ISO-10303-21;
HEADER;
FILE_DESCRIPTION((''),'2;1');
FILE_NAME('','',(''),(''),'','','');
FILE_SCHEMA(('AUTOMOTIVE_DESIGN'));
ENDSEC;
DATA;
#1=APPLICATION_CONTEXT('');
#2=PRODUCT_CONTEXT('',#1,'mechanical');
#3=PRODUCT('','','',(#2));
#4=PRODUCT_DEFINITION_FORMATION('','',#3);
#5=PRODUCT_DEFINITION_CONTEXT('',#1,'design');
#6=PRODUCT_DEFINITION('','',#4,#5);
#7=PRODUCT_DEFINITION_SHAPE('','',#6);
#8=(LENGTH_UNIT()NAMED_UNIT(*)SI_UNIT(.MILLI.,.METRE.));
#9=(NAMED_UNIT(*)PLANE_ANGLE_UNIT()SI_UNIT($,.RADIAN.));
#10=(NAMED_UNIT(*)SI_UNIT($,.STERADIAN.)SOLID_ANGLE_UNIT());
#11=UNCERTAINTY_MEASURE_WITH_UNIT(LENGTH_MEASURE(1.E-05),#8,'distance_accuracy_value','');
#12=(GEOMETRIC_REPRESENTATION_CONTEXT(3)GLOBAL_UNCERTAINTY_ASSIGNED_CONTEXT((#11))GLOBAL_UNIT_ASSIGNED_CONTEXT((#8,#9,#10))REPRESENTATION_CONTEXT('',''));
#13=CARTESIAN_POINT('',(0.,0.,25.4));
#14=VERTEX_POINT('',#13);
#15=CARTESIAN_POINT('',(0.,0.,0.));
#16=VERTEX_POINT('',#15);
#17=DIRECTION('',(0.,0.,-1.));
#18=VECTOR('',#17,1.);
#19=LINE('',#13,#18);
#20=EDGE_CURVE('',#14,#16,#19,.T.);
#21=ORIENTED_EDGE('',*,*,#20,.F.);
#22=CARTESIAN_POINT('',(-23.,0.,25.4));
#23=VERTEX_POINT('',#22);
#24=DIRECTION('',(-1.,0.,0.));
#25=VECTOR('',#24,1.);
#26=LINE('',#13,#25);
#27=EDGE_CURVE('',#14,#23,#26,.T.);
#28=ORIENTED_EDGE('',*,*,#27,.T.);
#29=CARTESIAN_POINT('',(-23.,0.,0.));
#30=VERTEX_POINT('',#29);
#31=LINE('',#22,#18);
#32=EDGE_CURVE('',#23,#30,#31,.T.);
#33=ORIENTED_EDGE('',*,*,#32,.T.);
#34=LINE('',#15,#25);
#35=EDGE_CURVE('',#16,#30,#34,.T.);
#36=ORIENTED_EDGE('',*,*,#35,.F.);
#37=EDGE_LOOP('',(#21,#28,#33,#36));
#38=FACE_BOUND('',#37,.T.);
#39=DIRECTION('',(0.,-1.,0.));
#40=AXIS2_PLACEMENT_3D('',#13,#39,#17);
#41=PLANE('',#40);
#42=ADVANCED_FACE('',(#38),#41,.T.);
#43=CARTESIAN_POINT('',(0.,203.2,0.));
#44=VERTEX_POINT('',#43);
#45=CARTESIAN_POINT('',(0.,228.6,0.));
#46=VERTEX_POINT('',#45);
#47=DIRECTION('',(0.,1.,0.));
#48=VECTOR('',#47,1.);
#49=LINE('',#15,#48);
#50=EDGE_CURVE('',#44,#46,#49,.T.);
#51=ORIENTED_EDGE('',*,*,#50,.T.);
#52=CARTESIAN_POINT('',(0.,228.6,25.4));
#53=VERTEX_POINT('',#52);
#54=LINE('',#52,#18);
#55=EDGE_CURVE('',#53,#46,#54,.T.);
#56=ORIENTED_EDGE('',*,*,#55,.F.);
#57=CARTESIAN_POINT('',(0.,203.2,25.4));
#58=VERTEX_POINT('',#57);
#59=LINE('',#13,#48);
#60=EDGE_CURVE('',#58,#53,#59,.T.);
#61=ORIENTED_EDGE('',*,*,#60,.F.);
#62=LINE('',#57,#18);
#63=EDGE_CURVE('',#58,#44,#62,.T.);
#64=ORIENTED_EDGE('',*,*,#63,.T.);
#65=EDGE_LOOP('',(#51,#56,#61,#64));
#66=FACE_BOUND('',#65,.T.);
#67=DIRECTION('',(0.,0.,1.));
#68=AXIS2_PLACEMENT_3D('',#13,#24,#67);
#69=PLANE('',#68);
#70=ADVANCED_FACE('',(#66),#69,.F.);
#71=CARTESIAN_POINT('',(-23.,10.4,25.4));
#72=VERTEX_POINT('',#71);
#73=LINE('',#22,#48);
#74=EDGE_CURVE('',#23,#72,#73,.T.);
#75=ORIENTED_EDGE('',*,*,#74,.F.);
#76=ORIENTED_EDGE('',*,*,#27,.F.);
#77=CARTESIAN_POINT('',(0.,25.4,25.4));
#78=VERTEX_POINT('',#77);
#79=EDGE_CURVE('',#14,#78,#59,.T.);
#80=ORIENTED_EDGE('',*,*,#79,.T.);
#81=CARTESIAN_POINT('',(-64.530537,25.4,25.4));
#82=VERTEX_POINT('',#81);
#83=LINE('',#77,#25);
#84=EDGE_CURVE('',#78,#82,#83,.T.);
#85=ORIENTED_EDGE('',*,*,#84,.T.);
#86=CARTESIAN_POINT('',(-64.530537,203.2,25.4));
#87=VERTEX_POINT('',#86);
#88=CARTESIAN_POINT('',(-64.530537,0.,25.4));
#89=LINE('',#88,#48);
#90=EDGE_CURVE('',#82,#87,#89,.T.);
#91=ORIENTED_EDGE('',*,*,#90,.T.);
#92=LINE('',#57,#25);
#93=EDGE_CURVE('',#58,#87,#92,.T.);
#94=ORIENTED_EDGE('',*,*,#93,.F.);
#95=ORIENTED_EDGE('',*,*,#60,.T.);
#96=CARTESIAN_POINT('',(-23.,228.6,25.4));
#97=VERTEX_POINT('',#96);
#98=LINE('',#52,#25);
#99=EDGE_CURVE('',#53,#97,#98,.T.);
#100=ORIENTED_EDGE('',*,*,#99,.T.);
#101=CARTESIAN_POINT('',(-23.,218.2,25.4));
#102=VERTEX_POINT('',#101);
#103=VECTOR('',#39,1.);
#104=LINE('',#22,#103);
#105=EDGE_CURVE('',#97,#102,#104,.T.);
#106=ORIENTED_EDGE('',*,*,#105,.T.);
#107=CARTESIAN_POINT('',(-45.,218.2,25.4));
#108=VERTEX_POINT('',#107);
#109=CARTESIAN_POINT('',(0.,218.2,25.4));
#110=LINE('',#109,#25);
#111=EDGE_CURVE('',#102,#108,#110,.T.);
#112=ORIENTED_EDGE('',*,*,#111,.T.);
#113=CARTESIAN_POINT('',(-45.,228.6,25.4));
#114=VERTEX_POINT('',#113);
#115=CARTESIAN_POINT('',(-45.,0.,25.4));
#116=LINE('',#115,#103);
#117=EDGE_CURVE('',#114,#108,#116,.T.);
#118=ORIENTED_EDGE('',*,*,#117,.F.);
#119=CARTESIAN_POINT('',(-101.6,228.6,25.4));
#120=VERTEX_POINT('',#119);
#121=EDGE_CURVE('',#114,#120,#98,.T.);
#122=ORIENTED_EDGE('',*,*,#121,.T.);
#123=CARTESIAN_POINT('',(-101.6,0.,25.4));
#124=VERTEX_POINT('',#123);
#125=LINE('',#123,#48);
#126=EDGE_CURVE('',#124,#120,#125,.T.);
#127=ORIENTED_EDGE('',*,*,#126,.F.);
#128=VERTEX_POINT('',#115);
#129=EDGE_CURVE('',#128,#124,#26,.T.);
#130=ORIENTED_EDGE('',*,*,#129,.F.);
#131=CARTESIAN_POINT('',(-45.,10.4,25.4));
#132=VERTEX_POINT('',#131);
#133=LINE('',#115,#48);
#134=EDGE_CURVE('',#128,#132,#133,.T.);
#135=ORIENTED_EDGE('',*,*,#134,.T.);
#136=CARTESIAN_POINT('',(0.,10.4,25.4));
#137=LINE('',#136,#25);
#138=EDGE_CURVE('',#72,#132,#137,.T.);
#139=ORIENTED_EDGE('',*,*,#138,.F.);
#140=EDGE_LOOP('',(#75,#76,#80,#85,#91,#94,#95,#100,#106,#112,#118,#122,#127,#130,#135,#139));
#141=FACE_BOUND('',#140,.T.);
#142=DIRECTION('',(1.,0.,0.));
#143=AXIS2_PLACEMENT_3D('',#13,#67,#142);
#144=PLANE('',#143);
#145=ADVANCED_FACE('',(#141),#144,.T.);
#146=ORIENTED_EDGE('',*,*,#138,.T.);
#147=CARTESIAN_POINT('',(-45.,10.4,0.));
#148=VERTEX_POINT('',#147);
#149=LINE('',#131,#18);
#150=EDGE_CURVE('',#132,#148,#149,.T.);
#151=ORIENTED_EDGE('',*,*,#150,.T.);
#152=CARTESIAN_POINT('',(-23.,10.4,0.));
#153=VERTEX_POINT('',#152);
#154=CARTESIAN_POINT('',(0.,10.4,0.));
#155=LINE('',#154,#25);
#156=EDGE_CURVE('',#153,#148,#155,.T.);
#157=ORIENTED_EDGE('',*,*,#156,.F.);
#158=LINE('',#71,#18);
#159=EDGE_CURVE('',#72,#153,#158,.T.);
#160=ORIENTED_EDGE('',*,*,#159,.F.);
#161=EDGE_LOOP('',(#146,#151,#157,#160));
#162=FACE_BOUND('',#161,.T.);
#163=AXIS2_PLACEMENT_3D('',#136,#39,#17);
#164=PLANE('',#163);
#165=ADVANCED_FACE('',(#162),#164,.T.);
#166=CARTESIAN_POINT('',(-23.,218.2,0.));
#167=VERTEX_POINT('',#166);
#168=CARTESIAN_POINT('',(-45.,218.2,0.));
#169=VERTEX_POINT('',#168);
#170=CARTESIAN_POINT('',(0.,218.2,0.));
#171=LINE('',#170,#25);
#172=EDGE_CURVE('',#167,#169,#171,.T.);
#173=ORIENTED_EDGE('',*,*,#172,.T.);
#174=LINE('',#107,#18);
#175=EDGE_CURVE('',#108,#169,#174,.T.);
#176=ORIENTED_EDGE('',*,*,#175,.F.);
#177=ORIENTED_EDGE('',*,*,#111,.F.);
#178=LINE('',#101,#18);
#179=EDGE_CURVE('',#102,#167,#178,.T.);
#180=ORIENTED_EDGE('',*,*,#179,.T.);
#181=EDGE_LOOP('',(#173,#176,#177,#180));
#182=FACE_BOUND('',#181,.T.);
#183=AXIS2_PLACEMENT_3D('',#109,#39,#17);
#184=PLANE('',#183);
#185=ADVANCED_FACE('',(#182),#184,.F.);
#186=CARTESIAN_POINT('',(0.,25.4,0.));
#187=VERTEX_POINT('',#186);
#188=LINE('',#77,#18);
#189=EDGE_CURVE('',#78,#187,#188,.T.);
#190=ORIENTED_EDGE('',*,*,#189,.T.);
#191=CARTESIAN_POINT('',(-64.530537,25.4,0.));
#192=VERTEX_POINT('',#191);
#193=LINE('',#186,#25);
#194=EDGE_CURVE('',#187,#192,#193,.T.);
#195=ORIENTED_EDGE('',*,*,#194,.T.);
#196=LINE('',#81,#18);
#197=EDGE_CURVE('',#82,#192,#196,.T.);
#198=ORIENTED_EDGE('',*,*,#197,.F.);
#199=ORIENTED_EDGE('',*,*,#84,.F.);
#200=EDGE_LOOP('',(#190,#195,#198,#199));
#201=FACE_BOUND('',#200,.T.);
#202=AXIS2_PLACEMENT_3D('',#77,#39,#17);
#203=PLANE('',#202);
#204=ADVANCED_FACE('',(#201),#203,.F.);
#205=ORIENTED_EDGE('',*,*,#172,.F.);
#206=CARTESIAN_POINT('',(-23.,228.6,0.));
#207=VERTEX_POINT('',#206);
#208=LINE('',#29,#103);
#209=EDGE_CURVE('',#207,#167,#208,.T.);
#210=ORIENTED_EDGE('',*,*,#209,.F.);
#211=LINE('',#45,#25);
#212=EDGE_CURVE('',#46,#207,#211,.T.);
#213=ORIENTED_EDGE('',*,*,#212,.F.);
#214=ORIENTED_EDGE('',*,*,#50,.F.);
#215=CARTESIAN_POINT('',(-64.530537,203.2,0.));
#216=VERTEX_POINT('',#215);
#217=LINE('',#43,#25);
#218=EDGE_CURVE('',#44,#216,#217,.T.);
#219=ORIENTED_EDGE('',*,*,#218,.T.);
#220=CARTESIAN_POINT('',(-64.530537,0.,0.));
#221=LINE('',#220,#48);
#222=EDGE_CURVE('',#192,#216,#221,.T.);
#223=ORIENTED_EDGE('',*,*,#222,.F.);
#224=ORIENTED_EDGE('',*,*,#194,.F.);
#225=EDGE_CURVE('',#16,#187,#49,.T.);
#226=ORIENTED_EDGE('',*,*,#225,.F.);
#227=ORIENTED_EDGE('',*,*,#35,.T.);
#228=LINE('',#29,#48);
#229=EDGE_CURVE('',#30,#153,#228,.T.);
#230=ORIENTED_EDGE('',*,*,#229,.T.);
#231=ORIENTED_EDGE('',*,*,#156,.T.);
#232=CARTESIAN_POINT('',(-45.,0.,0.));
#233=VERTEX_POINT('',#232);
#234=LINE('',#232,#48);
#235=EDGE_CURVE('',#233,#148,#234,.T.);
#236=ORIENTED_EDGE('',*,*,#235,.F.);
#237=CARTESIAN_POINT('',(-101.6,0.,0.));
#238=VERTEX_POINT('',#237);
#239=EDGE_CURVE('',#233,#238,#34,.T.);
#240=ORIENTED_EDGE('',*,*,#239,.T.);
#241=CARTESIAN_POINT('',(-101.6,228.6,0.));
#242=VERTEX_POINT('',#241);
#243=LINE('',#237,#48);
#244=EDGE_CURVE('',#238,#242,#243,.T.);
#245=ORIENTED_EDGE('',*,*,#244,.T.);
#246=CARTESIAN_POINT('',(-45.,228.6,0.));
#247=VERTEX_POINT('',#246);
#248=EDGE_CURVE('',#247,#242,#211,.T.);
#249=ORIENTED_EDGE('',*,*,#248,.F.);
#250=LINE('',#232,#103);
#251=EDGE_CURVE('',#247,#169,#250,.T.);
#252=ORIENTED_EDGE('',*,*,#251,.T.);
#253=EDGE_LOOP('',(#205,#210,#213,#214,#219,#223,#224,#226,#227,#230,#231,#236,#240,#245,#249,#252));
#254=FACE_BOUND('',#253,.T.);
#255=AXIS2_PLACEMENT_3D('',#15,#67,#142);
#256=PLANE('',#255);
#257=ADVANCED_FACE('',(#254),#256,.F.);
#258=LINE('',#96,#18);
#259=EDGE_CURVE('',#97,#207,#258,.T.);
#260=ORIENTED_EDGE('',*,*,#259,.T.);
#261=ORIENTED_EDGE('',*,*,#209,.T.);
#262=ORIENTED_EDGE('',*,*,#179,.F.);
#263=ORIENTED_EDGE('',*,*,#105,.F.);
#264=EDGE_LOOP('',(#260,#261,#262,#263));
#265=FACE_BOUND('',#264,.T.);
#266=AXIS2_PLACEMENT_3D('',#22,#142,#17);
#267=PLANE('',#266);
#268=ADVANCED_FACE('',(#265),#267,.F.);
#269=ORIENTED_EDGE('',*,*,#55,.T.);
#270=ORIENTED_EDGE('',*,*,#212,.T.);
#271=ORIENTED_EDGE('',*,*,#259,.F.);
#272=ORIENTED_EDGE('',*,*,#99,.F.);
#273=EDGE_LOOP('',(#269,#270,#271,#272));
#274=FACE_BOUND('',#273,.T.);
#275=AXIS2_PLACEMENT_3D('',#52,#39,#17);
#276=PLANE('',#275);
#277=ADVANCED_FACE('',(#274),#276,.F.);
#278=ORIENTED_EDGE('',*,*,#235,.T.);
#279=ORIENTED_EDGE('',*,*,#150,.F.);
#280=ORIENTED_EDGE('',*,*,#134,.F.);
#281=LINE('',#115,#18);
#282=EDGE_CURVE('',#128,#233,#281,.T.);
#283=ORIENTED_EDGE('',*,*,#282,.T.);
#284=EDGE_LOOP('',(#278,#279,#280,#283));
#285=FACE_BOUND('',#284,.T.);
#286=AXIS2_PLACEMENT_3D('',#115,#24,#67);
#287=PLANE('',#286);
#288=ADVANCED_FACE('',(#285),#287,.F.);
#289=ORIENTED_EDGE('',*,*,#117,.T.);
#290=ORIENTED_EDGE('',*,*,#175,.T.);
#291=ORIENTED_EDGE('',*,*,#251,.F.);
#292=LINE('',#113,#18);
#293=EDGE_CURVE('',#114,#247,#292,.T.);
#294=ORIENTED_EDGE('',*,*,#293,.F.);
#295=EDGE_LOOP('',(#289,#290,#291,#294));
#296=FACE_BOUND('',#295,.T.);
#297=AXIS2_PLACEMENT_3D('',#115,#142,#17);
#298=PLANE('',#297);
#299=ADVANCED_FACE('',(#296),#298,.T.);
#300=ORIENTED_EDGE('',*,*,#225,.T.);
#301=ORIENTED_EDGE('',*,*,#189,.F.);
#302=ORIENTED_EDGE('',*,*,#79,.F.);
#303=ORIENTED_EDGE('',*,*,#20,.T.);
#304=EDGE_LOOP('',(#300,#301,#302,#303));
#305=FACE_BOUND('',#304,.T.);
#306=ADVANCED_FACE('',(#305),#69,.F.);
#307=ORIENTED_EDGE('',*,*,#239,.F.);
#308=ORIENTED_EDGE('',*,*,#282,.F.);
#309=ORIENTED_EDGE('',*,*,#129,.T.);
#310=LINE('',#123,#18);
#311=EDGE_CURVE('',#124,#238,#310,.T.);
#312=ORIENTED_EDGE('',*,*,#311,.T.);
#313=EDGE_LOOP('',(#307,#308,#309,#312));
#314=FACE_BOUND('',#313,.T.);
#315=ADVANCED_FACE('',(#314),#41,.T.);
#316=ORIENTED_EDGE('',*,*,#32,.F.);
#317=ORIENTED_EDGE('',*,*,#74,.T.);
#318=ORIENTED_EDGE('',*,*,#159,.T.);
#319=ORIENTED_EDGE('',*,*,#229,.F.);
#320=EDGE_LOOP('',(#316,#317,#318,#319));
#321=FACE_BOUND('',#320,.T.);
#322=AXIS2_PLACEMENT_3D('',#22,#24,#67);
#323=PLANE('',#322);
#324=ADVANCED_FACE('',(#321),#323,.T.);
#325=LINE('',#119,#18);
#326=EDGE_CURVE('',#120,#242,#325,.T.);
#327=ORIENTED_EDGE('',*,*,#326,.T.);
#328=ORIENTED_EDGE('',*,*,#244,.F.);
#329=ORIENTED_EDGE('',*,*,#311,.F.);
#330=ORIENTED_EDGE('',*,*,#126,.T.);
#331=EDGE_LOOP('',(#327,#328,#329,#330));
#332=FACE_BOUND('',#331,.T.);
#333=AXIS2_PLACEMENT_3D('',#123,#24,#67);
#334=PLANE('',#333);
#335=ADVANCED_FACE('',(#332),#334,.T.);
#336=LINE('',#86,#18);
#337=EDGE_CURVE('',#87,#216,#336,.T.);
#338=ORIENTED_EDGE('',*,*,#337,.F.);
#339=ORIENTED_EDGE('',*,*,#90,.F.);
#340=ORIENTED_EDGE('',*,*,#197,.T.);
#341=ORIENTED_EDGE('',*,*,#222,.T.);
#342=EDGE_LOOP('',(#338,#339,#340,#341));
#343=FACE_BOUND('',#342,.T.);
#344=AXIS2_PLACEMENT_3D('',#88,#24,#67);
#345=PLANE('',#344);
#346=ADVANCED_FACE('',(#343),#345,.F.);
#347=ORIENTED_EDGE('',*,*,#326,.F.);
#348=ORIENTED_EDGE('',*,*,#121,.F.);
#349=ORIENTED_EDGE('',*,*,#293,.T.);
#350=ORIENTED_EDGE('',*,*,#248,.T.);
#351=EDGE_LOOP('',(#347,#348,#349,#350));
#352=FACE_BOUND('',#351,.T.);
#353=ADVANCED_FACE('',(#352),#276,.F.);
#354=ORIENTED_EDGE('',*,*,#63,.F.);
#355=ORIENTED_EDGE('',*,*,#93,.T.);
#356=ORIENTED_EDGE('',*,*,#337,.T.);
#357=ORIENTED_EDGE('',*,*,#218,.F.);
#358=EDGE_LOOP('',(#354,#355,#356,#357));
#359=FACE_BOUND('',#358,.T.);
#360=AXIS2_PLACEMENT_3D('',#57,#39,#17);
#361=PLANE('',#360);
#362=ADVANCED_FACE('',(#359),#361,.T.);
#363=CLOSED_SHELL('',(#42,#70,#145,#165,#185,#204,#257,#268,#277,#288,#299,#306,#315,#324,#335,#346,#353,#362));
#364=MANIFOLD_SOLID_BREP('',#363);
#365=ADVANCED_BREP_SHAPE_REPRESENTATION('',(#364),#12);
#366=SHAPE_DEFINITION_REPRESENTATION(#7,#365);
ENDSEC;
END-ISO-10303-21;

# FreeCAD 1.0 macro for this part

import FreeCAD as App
import Part
import Sketcher


def add_polygon(sketch, points):
    """Adds a closed chain of lines whose ends are joined by coincident constraints."""
    first, n = sketch.GeometryCount, len(points)
    for a, b in zip(points, points[1:] + points[:1]):
        sketch.addGeometry(Part.LineSegment(App.Vector(*a, 0), App.Vector(*b, 0)), False)
    for i in range(n):
        sketch.addConstraint(Sketcher.Constraint("Coincident", first + i, 2, first + (i + 1) % n, 1))

doc = App.newDocument("Part")
body = doc.addObject("PartDesign::Body", "Body")

# Sketch on XY plane
sketch1 = body.newObject("Sketcher::SketchObject", "Sketch")
sketch1.AttachmentSupport = (doc.getObject("XY_Plane"), [""])
sketch1.MapMode = "FlatFace"
add_polygon(sketch1, [(-23, 0), (0, 0), (0, 25.4), (-64.530537, 25.4), (-64.530537, 203.2), (0, 203.2), (0, 228.6), (-23, 228.6), (-23, 218.2), (-45, 218.2), (-45, 228.6), (-101.6, 228.6), (-101.6, 0), (-45, 0), (-45, 10.4), (-23, 10.4)])  # lines 0-15
sketch1.addConstraint([
    Sketcher.Constraint("Horizontal", 0),
    Sketcher.Constraint("Vertical", 1),
    Sketcher.Constraint("Horizontal", 2),
    Sketcher.Constraint("Vertical", 3),
    Sketcher.Constraint("Horizontal", 4),
    Sketcher.Constraint("Vertical", 5),
    Sketcher.Constraint("Horizontal", 6),
    Sketcher.Constraint("Vertical", 7),
    Sketcher.Constraint("Horizontal", 8),
    Sketcher.Constraint("Vertical", 9),
    Sketcher.Constraint("Horizontal", 10),
    Sketcher.Constraint("Vertical", 11),
    Sketcher.Constraint("Horizontal", 12),
    Sketcher.Constraint("Vertical", 13),
    Sketcher.Constraint("Horizontal", 14),
    Sketcher.Constraint("Vertical", 15),
    Sketcher.Constraint("Coincident", 0, 2, -1, 1),
    Sketcher.Constraint("PointOnObject", 4, 2, -2),
    Sketcher.Constraint("PointOnObject", 11, 2, -1),
    Sketcher.Constraint("Horizontal", 6, 2, 9, 2),
    Sketcher.Constraint("Vertical", 9, 2, 12, 2),
    Sketcher.Constraint("Vertical", 7, 2, 14, 2),
    Sketcher.Constraint("Equal", 1, 5),
    Sketcher.Constraint("Equal", 9, 13),
    Sketcher.Constraint("DistanceX", 0, 1, 0, 2, 23.0),
    Sketcher.Constraint("DistanceX", 8, 2, 8, 1, 22.0),
    Sketcher.Constraint("DistanceX", 10, 2, 10, 1, 56.6),
    Sketcher.Constraint("DistanceY", 1, 1, 1, 2, 25.4),
    Sketcher.Constraint("DistanceY", 3, 1, 3, 2, 177.8),
    Sketcher.Constraint("DistanceY", 7, 2, 7, 1, 10.4),
    Sketcher.Constraint("DistanceX", 2, 2, 2, 1, 64.530537),
])
pad1 = body.newObject("PartDesign::Pad", "Pad")
pad1.Profile = sketch1
pad1.Length = 25.4

doc.recompute()
